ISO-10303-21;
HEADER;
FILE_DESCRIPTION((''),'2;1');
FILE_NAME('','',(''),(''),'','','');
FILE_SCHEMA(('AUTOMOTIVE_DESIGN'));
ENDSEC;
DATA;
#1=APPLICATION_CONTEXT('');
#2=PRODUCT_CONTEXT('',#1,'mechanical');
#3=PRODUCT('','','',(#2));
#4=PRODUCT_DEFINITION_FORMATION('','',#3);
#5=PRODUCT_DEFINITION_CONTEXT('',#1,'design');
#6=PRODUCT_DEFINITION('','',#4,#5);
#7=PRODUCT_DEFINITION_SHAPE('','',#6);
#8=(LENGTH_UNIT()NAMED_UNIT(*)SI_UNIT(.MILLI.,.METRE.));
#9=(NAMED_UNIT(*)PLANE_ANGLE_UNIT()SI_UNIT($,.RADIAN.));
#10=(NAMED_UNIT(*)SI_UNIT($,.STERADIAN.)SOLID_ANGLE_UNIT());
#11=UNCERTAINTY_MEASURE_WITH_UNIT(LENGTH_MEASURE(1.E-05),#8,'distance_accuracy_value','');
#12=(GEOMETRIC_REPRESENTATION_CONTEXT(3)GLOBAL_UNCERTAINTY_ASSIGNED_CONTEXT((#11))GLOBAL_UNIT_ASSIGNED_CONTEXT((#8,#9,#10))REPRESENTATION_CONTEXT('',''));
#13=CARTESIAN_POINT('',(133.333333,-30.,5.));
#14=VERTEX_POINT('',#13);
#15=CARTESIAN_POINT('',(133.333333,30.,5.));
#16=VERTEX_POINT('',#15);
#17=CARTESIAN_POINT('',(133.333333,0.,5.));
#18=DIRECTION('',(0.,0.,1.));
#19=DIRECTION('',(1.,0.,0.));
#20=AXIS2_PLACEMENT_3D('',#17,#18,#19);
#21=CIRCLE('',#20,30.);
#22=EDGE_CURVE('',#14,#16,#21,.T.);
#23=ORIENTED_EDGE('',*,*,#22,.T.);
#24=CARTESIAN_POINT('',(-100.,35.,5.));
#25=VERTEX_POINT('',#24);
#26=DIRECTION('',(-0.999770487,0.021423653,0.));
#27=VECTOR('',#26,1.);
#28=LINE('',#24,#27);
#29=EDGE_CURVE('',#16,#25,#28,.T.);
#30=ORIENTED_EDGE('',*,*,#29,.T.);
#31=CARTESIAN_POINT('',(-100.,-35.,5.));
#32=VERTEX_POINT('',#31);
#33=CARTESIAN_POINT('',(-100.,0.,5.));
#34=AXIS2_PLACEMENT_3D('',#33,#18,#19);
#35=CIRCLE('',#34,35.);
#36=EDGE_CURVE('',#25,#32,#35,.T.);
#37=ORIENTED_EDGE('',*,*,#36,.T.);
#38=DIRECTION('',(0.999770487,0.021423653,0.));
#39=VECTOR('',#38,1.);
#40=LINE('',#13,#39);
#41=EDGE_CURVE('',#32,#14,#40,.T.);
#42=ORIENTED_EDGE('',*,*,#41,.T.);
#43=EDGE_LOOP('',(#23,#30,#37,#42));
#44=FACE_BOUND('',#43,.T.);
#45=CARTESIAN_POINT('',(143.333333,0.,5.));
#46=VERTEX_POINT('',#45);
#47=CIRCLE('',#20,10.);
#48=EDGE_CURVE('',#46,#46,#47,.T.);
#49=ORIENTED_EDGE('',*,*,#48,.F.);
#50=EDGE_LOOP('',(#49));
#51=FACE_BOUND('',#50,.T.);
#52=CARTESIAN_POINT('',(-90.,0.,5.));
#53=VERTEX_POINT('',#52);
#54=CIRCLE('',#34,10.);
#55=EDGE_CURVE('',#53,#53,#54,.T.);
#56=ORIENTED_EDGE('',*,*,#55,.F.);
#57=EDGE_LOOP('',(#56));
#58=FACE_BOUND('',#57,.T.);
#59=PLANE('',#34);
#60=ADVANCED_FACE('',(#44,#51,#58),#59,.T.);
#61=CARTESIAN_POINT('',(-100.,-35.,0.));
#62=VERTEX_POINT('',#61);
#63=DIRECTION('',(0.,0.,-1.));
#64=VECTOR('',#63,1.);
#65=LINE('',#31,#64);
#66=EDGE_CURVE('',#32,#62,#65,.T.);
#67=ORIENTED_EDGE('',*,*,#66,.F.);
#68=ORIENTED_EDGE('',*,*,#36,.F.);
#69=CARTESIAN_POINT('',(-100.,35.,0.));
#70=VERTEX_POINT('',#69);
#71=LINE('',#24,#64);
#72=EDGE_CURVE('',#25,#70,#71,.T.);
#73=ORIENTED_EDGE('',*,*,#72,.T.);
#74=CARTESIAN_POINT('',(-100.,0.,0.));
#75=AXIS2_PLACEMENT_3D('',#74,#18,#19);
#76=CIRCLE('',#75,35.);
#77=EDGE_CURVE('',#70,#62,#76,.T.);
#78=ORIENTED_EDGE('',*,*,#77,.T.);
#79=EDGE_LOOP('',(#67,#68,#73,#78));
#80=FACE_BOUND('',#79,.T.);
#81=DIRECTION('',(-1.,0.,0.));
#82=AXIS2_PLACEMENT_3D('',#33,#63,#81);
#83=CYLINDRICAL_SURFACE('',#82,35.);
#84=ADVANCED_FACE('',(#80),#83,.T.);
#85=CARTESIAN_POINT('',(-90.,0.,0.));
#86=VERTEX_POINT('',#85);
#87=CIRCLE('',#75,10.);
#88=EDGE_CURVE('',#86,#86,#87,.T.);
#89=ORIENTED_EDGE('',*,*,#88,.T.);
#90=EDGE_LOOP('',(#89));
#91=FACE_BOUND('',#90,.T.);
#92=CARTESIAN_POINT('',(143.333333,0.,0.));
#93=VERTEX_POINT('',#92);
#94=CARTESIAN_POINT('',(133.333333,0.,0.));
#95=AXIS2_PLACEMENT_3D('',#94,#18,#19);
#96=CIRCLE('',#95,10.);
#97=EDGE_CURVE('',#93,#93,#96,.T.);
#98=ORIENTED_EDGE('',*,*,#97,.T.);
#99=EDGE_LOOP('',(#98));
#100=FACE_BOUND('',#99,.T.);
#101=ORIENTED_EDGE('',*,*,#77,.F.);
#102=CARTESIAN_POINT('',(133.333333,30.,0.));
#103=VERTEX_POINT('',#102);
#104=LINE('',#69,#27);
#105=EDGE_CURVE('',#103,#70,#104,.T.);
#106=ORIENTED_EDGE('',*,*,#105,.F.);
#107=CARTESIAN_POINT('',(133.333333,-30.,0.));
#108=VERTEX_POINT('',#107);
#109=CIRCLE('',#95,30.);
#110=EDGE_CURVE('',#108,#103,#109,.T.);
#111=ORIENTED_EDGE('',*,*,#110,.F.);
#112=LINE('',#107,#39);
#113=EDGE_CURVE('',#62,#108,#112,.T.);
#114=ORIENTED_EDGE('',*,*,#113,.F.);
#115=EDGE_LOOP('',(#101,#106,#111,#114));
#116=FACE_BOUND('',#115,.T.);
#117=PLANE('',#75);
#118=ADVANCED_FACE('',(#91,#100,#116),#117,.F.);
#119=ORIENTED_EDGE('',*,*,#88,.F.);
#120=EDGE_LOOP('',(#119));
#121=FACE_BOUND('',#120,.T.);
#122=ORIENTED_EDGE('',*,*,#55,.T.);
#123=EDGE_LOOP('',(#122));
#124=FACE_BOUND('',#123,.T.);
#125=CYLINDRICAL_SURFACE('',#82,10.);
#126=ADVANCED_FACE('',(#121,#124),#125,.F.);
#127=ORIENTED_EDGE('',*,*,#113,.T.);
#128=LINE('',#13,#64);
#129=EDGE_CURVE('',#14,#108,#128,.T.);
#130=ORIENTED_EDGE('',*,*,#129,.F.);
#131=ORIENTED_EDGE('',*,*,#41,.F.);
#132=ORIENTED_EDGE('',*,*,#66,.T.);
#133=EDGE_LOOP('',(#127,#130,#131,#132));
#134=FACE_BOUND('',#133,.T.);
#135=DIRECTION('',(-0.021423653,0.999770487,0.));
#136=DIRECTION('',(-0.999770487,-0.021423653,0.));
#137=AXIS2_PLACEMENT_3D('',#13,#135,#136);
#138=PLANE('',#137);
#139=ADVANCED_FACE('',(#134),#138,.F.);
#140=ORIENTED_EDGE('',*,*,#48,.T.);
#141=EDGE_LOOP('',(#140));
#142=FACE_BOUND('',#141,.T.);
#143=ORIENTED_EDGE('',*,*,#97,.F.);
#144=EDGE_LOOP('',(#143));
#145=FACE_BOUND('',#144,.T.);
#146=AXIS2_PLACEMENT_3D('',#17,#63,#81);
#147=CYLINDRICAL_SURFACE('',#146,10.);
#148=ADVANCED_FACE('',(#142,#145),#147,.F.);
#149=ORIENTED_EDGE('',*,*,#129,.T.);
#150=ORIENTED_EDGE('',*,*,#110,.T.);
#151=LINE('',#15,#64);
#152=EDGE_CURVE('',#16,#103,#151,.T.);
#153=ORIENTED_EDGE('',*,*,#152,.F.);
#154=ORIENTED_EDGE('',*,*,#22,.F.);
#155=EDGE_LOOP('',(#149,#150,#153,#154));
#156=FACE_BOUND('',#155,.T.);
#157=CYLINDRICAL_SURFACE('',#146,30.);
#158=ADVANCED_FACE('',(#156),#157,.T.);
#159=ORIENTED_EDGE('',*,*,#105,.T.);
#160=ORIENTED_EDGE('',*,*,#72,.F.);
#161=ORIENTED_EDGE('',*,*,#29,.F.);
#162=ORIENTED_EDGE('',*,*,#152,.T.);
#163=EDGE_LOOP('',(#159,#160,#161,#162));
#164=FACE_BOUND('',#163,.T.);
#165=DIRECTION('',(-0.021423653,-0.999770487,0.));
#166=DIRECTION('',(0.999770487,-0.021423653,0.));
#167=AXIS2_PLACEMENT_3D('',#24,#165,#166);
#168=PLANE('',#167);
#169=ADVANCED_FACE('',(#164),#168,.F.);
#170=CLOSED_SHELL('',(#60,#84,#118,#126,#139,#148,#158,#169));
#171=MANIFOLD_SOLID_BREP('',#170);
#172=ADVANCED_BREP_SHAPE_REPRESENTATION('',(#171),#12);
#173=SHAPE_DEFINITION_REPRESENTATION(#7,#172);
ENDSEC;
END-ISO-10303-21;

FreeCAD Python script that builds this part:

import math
import FreeCAD as App
import Part
import Sketcher

V = App.Vector
Q = App.Units.Quantity

doc = App.newDocument("Part")
params = doc.addObject("Spreadsheet::Sheet", "Params")
for row, (alias, value) in enumerate([
    ("sketch1_diameter", "20 mm"),
    ("sketch1_radius", "35 mm"),
    ("sketch1_radius2", "30 mm"),
    ("pad1_length", "5 mm"),
], start=1):
    params.set(f"A{row}", alias)
    params.set(f"B{row}", "=" + value)
    params.setAlias(f"B{row}", alias)

body = doc.addObject("PartDesign::Body", "Body")

# Sketch on XY plane
sketch1 = doc.addObject("Sketcher::SketchObject", "Sketch")
body.addObject(sketch1)
sketch1.AttachmentSupport = (doc.XY_Plane, [""])
sketch1.MapMode = "FlatFace"
sketch1.addGeometry([
    Part.LineSegment(V(133, 30, 0), V(-100, 35, 0)),  # 0
    Part.ArcOfCircle(Part.Circle(V(-100, 0, 0), V(0, 0, 1), 35), math.radians(90), math.radians(270)),  # 1
    Part.LineSegment(V(-100, -35, 0), V(133, -30, 0)),  # 2
    Part.ArcOfCircle(Part.Circle(V(133, 0, 0), V(0, 0, 1), 30), math.radians(-90), math.radians(90)),  # 3
    Part.Circle(V(133, 0, 0), V(0, 0, 1), 10),  # 4
    Part.Circle(V(-100, 0, 0), V(0, 0, 1), 10),  # 5
], False)
sketch1.addConstraint([
    Sketcher.Constraint("Coincident", 0, 2, 1, 1),
    Sketcher.Constraint("Coincident", 1, 2, 2, 1),
    Sketcher.Constraint("Coincident", 2, 2, 3, 1),
    Sketcher.Constraint("Coincident", 3, 2, 0, 1),
    Sketcher.Constraint("Coincident", 4, 3, 3, 3),
    Sketcher.Constraint("Coincident", 5, 3, 1, 3),
    Sketcher.Constraint("Equal", 4, 5),
    Sketcher.Constraint("Symmetric", 0, 2, 1, 2, -1),
    Sketcher.Constraint("Symmetric", 2, 2, 3, 2, -1),
    Sketcher.Constraint("Vertical", 5, 3, 0, 2),
    Sketcher.Constraint("Vertical", 4, 3, 2, 2),
    Sketcher.Constraint("Diameter", 4, Q("20 mm")),
    Sketcher.Constraint("Radius", 1, Q("35 mm")),
    Sketcher.Constraint("Radius", 3, Q("30 mm")),
    Sketcher.Constraint("DistanceX", 1, 3, -1, 1, Q("100 mm")),
    Sketcher.Constraint("Distance", 0, Q("233.386899 mm")),
])
sketch1.setExpression("Constraints[11]", "Params.sketch1_diameter")
sketch1.setExpression("Constraints[12]", "Params.sketch1_radius")
sketch1.setExpression("Constraints[13]", "Params.sketch1_radius2")
pad1 = doc.addObject("PartDesign::Pad", "Pad")
body.addObject(pad1)
pad1.Profile = sketch1
pad1.setExpression("Length", "Params.pad1_length")

doc.recompute()
